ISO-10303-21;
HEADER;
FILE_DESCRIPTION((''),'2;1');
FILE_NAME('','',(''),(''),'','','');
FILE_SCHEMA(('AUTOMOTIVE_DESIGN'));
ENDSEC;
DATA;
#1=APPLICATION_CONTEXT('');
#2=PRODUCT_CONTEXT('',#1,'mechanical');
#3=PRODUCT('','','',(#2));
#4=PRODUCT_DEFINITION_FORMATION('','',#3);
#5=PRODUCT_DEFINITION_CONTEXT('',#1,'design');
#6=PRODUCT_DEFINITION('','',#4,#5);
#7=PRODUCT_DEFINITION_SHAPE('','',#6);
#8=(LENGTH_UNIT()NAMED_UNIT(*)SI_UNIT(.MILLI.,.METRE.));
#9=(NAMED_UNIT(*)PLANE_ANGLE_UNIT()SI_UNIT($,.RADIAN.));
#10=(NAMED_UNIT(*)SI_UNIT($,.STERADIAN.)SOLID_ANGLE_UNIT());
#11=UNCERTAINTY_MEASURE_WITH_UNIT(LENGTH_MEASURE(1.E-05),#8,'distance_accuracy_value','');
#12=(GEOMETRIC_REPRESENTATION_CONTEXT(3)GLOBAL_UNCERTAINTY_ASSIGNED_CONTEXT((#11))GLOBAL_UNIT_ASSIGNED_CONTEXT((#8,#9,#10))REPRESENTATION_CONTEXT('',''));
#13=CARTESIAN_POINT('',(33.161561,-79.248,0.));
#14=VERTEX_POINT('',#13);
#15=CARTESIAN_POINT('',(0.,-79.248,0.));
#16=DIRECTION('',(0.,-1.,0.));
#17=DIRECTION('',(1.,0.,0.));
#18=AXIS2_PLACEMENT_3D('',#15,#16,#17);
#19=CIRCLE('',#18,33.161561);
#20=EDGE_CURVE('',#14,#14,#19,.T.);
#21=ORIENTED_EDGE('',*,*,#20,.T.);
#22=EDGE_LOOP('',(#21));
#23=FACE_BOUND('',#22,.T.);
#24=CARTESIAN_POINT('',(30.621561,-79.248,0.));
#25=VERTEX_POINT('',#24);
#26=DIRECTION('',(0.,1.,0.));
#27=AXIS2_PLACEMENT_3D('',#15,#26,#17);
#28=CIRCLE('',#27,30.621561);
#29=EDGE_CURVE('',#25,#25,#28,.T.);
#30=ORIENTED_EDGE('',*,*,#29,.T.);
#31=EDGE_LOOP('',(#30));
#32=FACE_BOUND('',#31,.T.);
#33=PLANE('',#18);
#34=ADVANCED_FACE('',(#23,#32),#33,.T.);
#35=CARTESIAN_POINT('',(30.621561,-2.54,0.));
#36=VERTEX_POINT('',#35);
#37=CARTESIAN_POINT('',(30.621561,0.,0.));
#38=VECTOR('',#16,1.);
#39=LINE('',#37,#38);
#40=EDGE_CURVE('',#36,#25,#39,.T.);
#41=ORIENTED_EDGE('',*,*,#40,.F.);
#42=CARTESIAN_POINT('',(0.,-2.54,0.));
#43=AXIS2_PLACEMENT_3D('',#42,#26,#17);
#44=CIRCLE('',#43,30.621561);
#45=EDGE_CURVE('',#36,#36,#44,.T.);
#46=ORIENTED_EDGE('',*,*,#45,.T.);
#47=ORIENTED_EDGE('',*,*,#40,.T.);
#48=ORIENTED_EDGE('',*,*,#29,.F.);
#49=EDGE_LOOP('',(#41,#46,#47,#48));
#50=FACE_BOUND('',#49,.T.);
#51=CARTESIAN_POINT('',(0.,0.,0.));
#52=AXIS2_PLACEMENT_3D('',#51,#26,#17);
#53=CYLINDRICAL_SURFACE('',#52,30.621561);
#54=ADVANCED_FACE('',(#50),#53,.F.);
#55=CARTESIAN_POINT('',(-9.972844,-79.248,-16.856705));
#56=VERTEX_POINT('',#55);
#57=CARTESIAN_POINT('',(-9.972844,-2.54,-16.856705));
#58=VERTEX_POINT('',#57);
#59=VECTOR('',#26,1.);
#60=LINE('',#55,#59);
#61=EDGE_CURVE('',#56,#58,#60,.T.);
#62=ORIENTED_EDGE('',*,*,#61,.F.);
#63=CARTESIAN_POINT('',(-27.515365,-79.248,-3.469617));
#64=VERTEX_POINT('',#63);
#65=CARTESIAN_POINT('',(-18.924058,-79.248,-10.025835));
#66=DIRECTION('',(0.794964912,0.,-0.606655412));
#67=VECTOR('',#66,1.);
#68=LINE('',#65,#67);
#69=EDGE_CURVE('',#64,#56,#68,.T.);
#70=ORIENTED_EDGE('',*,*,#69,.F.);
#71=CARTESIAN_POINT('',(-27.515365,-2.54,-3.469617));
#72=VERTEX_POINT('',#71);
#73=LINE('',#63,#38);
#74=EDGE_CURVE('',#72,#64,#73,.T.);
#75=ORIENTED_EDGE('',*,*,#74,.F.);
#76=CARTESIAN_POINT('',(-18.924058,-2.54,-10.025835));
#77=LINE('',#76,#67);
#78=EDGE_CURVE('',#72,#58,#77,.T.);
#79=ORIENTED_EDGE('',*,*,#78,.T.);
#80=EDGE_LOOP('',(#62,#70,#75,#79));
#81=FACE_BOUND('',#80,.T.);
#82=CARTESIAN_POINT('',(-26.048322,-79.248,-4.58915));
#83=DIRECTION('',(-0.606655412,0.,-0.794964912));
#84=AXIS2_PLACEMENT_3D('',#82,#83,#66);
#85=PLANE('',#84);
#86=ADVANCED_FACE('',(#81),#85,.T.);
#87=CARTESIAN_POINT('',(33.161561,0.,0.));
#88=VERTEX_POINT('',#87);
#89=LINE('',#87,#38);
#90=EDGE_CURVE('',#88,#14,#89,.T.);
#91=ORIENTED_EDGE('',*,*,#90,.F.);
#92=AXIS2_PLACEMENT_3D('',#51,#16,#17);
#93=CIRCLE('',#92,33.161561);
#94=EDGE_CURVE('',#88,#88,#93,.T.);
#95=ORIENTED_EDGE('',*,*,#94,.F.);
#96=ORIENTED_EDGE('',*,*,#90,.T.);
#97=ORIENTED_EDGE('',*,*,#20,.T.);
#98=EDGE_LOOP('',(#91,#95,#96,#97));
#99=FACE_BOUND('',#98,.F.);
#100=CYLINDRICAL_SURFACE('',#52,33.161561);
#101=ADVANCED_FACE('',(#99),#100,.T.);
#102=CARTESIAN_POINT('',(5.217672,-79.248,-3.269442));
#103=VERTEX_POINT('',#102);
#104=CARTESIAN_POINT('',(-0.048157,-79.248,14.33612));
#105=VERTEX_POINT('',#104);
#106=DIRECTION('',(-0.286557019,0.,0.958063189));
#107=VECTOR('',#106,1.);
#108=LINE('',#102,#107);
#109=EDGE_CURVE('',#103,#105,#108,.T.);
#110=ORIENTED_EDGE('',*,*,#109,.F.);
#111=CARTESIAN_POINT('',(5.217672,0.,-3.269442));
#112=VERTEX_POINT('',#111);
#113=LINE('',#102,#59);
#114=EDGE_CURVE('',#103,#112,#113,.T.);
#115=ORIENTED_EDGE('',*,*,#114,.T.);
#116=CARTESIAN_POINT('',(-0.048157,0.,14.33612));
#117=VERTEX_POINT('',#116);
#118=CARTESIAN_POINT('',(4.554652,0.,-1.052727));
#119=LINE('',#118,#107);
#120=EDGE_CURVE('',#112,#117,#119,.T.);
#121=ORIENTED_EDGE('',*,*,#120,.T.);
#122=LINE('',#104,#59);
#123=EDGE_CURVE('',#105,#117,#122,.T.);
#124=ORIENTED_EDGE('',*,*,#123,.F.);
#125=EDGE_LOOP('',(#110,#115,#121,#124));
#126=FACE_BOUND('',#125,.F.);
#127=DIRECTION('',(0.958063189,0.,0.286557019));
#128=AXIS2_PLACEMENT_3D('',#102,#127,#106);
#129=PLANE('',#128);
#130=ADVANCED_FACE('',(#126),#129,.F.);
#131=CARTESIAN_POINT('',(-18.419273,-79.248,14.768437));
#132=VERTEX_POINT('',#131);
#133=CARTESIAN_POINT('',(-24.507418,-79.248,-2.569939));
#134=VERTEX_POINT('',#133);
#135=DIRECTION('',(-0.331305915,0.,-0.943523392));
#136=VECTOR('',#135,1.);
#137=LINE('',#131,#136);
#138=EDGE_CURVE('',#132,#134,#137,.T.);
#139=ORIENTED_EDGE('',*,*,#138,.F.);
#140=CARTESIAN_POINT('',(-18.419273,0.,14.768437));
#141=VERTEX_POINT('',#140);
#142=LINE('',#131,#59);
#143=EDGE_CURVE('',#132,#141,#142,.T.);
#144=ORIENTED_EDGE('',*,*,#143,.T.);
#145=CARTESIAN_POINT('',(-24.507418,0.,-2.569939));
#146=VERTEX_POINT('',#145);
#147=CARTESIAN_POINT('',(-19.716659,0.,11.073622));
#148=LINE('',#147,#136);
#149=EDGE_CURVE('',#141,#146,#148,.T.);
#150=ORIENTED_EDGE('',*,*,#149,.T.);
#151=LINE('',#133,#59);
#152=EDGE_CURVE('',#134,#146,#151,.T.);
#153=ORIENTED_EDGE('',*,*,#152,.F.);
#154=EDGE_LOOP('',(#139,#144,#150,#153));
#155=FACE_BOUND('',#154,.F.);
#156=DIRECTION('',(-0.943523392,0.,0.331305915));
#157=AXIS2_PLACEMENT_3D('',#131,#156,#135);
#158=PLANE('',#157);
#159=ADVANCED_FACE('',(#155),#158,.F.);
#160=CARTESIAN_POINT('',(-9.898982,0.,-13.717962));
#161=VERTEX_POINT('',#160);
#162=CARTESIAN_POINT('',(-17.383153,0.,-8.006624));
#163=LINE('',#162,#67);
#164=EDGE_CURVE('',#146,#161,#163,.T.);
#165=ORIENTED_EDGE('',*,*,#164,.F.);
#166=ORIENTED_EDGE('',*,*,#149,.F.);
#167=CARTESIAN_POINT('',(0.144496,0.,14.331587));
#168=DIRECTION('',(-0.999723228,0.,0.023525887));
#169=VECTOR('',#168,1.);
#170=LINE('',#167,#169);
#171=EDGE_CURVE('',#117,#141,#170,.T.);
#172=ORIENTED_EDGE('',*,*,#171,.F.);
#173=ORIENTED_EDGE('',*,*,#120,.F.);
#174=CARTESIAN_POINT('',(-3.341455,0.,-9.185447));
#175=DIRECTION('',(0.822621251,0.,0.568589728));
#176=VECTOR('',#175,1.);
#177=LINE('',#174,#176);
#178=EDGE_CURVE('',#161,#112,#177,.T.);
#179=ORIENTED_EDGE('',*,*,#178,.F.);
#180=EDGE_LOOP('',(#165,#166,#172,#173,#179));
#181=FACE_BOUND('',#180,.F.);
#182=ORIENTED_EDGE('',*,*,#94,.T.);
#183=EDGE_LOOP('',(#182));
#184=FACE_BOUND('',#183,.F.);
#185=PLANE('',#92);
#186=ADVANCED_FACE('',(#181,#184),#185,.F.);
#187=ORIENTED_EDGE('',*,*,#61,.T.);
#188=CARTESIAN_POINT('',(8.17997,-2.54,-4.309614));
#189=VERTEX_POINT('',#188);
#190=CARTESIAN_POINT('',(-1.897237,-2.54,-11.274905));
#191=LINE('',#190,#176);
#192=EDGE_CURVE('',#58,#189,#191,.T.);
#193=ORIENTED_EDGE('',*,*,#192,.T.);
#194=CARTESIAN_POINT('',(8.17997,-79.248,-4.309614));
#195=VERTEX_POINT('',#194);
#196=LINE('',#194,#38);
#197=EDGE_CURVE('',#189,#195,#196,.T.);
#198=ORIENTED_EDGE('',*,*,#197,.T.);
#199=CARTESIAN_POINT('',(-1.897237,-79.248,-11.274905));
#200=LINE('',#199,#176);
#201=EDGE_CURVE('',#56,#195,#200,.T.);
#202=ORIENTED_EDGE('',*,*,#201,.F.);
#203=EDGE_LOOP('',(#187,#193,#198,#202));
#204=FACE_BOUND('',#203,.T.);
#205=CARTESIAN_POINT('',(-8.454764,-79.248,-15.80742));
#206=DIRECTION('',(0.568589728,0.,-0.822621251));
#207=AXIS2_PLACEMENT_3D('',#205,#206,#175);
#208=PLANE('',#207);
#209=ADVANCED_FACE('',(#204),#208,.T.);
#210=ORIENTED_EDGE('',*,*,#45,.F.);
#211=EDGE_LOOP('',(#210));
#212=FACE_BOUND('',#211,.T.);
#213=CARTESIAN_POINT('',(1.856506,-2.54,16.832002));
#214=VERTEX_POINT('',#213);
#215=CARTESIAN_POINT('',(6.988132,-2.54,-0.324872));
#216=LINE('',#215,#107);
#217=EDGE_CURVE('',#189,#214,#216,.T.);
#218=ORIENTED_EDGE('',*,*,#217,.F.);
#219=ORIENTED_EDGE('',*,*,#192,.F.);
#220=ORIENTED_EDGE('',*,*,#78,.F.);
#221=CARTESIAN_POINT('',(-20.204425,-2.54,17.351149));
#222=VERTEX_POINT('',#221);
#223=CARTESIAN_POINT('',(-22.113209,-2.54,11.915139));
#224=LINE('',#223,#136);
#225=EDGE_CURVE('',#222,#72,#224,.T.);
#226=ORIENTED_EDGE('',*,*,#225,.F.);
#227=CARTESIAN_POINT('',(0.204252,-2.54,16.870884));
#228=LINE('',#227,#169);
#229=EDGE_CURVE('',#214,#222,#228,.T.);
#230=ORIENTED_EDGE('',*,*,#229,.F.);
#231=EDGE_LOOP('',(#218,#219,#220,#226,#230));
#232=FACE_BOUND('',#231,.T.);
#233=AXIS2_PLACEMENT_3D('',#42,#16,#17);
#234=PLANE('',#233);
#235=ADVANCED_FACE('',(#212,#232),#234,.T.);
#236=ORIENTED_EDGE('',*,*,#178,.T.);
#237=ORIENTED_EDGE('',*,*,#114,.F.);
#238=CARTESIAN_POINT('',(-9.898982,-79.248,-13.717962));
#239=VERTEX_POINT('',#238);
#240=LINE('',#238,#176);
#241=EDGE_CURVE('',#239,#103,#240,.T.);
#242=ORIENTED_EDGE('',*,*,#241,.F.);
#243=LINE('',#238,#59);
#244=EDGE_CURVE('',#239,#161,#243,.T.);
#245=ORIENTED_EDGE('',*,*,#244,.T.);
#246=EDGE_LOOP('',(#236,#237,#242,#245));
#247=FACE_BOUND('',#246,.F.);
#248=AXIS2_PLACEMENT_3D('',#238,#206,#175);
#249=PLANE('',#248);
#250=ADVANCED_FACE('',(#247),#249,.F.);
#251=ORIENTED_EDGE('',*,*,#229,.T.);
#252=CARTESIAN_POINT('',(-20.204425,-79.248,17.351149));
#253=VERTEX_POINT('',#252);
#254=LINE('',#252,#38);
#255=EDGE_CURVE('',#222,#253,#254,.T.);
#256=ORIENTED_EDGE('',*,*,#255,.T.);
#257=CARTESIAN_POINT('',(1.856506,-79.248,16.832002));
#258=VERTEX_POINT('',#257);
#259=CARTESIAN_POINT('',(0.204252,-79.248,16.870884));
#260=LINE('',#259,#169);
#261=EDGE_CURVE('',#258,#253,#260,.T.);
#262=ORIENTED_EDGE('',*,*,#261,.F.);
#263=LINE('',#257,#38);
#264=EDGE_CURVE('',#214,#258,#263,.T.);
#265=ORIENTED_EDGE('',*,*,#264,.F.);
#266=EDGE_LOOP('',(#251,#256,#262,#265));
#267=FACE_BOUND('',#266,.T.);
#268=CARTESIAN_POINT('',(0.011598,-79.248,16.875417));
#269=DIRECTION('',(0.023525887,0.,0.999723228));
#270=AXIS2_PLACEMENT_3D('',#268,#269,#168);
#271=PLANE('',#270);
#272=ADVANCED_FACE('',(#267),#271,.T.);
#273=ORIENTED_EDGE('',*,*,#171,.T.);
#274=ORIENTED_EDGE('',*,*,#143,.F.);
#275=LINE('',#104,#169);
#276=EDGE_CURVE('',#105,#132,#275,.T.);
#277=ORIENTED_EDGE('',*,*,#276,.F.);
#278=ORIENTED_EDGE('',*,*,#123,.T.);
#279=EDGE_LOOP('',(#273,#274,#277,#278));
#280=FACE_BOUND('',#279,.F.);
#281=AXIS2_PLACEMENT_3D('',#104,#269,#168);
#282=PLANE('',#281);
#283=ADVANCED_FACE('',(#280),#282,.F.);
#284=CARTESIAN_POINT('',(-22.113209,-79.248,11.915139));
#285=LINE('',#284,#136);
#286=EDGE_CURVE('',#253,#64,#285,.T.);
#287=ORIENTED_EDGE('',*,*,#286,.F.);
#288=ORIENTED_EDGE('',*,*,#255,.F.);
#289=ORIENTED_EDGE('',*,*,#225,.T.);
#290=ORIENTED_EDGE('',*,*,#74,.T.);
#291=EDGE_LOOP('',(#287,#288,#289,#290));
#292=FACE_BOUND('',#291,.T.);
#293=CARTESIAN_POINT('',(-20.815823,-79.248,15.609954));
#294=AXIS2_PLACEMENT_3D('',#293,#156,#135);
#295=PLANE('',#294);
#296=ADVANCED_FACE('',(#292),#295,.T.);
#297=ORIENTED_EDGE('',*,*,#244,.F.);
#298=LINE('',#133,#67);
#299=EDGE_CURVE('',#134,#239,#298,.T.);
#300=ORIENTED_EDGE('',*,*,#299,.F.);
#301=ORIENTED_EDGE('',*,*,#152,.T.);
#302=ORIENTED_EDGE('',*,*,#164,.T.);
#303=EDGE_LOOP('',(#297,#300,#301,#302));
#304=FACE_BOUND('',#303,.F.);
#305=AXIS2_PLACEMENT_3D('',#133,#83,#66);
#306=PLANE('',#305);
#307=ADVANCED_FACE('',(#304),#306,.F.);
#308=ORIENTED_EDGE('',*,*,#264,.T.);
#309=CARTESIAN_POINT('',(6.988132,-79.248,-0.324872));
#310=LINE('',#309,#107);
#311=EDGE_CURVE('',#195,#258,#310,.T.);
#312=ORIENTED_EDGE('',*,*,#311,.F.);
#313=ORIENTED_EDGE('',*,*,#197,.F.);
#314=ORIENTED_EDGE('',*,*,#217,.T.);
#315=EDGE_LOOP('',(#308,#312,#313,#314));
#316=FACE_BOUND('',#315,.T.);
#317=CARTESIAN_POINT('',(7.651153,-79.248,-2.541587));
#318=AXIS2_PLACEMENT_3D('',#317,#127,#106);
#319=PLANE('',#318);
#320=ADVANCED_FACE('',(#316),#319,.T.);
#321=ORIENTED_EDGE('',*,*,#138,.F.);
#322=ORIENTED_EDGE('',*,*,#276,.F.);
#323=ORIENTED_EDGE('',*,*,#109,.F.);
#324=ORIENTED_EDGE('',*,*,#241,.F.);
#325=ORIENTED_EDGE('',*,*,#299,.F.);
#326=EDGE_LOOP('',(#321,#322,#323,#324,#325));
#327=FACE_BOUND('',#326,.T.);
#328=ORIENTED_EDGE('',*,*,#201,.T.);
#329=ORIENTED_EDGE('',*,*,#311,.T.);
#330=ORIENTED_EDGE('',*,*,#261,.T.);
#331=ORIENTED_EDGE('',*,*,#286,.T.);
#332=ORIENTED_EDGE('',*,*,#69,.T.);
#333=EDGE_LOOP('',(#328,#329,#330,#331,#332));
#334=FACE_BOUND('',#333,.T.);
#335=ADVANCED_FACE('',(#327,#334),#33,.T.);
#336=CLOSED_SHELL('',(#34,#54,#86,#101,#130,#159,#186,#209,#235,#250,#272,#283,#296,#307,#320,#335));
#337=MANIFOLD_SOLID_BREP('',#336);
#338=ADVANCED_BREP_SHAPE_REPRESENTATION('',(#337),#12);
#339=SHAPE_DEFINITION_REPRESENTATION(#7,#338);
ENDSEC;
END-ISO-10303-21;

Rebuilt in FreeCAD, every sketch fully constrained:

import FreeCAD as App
import Part
import Sketcher
from FreeCAD import Vector
Q = App.Units.Quantity


def faces_at(feature, points):
    """Names of the faces that lie closest to the given points."""
    faces = feature.Shape.Faces
    near = lambda p: min(range(len(faces)), key=lambda i: faces[i].distToShape(Part.Vertex(*p))[0])
    return sorted({f"Face{near(p) + 1}" for p in points})

doc = App.newDocument("Part")
body = doc.addObject("PartDesign::Body", "Body")

# Sketch on XZ plane
sketch1 = doc.addObject("Sketcher::SketchObject", "Sketch")
body.addObject(sketch1)
sketch1.AttachmentSupport = (doc.XZ_Plane, [""])
sketch1.MapMode = "FlatFace"
sketch1.addGeometry(Part.Circle(Vector(0, 0, 0), Vector(0, 0, 1), 33), False)
sketch1.addConstraint([
    Sketcher.Constraint("Coincident", 0, 3, -1, 1),
    Sketcher.Constraint("Diameter", 0, Q("66.323123 mm")),
])
pad1 = doc.addObject("PartDesign::Pad", "Pad")
body.addObject(pad1)
pad1.Profile = sketch1
pad1.Length = Q("3.12 in")

# Sketch on XZ plane
sketch2 = doc.addObject("Sketcher::SketchObject", "Sketch001")
body.addObject(sketch2)
sketch2.AttachmentSupport = (doc.XZ_Plane, [""])
sketch2.MapMode = "FlatFace"
sketch2.AttachmentOffset = App.Placement(Vector(0, 0, 3.12 * 25.4), App.Rotation())
sketch2.addGeometry([
    Part.LineSegment(Vector(-10, -14, 0), Vector(5, -3, 0)),  # 0
    Part.LineSegment(Vector(5, -3, 0), Vector(0, 14, 0)),  # 1
    Part.LineSegment(Vector(0, 14, 0), Vector(-18, 15, 0)),  # 2
    Part.LineSegment(Vector(-18, 15, 0), Vector(-25, -3, 0)),  # 3
    Part.LineSegment(Vector(-25, -3, 0), Vector(-10, -14, 0)),  # 4
], False)
sketch2.addConstraint([
    Sketcher.Constraint("Coincident", 0, 2, 1, 1),
    Sketcher.Constraint("Coincident", 1, 2, 2, 1),
    Sketcher.Constraint("Coincident", 2, 2, 3, 1),
    Sketcher.Constraint("Coincident", 3, 2, 4, 1),
    Sketcher.Constraint("Coincident", 4, 2, 0, 1),
    Sketcher.Constraint("Equal", 0, 1),
    Sketcher.Constraint("Equal", 1, 2),
    Sketcher.Constraint("Equal", 2, 3),
    Sketcher.Constraint("Equal", 3, 4),
    Sketcher.Constraint("Distance", 0, Q("18.376202 mm")),
    Sketcher.Constraint("DistanceY", 4, 2, 2, 2, Q("28.486399 mm")),
    Sketcher.Constraint("DistanceY", -1, 1, 1, 2, Q("14.33612 mm")),
    Sketcher.Constraint("DistanceY", 3, 2, -1, 1, Q("2.569939 mm")),
    Sketcher.Constraint("DistanceX", 4, 2, -1, 1, Q("9.898982 mm")),
    Sketcher.Constraint("DistanceY", 4, 2, -1, 1, Q("13.717962 mm")),
])
pocket1 = doc.addObject("PartDesign::Pocket", "Pocket")
body.addObject(pocket1)
pocket1.Profile = sketch2
pocket1.Length = Q("4.38 in")
doc.recompute()

thickness = doc.addObject("PartDesign::Thickness", "Thickness")
body.addObject(thickness)
thickness.Base = (pocket1, faces_at(pocket1, [(-13.265, -79.248, -13.265)]))
thickness.Value = Q("0.1 in")
thickness.Reversed = True
thickness.Join = "Intersection"

doc.recompute()
